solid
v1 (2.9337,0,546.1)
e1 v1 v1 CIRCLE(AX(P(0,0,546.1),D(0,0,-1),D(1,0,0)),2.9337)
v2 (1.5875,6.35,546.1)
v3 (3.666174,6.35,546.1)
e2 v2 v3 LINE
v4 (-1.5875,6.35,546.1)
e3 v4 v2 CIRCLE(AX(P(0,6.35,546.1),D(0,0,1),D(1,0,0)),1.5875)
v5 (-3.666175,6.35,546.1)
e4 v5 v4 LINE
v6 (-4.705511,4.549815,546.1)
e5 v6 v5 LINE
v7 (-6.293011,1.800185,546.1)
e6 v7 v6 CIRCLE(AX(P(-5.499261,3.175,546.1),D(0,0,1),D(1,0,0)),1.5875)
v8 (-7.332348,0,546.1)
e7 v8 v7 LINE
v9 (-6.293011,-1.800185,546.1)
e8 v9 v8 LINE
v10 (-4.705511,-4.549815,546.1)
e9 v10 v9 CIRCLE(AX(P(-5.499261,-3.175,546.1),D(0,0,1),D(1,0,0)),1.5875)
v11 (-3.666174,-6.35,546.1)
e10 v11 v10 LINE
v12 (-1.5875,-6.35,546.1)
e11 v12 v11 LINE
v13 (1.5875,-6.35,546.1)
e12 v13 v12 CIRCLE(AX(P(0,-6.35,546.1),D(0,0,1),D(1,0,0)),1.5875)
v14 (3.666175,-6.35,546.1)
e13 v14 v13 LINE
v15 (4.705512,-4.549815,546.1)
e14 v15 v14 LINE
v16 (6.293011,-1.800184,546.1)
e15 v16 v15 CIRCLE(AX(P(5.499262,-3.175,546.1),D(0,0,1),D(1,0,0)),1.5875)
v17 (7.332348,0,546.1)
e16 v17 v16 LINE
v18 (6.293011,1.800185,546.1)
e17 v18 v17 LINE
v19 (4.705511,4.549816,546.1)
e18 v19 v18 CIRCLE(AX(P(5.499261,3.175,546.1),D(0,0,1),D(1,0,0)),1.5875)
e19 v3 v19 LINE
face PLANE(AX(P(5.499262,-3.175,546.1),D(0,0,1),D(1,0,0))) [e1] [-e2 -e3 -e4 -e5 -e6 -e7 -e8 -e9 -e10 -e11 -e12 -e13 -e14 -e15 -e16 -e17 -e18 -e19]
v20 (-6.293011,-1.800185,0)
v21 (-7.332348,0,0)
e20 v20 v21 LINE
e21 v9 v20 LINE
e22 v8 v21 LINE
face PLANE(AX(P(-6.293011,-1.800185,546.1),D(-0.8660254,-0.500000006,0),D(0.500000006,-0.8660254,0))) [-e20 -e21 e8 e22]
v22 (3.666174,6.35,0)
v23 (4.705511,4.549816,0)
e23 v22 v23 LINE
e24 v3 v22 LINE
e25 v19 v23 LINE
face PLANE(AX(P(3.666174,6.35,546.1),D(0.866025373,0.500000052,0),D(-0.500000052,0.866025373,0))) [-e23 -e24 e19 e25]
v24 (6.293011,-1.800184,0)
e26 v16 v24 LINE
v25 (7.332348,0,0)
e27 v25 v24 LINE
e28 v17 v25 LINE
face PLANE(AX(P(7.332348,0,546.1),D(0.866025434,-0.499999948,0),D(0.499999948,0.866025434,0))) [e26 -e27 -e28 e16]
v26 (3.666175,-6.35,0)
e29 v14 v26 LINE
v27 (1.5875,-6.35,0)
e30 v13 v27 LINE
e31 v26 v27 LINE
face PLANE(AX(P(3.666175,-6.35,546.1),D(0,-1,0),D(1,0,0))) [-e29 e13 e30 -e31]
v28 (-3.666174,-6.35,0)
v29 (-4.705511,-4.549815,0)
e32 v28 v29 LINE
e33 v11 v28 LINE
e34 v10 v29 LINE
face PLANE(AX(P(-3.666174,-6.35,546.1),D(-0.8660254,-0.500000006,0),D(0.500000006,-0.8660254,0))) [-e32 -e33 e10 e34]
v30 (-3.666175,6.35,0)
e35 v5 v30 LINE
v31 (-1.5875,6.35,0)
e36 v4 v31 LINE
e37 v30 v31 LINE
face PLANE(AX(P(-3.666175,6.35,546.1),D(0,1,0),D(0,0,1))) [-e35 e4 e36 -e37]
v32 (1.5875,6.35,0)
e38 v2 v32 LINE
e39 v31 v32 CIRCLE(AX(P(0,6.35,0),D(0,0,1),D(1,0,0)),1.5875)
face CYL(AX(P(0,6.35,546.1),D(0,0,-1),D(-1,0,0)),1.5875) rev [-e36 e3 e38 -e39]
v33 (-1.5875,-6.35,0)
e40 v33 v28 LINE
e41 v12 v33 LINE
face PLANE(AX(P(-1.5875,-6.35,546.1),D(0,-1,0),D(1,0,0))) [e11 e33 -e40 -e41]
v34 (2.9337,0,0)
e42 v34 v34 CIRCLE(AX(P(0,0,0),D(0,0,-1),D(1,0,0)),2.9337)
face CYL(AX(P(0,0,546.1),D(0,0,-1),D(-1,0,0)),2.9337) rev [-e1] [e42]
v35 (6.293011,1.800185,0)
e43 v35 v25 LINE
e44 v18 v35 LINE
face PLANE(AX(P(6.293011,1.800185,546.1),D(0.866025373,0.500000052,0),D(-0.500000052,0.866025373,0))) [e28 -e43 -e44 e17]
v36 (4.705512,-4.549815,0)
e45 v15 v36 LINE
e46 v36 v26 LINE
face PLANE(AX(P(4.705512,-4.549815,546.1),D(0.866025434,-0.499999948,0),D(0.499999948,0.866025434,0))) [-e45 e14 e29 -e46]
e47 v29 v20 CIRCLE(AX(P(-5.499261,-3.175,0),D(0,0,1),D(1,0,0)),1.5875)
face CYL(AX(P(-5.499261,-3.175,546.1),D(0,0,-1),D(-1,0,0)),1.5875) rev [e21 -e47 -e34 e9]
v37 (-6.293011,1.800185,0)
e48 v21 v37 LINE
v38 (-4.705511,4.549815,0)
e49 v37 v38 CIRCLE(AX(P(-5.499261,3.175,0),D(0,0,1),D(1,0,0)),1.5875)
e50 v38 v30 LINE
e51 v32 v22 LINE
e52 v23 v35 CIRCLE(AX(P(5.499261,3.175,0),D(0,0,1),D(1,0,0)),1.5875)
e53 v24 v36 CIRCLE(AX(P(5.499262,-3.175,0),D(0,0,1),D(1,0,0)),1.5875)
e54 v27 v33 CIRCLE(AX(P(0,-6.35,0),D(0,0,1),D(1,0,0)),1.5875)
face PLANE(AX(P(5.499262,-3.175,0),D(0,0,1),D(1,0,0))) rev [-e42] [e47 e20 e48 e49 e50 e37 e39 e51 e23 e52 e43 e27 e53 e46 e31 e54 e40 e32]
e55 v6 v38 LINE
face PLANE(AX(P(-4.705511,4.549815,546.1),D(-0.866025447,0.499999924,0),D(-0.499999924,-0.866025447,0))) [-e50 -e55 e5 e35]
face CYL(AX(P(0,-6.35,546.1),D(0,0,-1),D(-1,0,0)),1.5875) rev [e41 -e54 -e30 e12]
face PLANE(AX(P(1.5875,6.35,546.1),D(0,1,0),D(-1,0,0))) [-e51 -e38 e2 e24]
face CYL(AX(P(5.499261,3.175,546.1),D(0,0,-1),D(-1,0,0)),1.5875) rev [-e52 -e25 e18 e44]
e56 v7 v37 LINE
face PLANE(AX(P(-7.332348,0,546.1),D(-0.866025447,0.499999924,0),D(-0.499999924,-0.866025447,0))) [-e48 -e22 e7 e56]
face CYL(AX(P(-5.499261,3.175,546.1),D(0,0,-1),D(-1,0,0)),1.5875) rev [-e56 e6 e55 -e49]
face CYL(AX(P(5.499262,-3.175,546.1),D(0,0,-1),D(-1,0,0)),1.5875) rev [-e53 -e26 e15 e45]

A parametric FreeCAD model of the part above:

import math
import FreeCAD as App
import Part
import Sketcher
Q = App.Units.Quantity

doc = App.newDocument("Part")
body = doc.addObject("PartDesign::Body", "Body")

# Sketch on XY plane
sketch1 = body.newObject("Sketcher::SketchObject", "Sketch")
sketch1.AttachmentSupport = (doc.getObject("XY_Plane"), [""])
sketch1.MapMode = "FlatFace"
sketch1.addGeometry(Part.LineSegment(App.Vector(4.7, -4.5, 0), App.Vector(3.7, -6.3, 0)), False)
sketch1.addGeometry(Part.LineSegment(App.Vector(3.7, -6.3, 0), App.Vector(1.6, -6.3, 0)), False)
sketch1.addGeometry(Part.ArcOfCircle(Part.Circle(App.Vector(0, -6.3, 0), App.Vector(0, 0, 1), 1.6), math.radians(0), math.radians(180)), False)
sketch1.addGeometry(Part.LineSegment(App.Vector(-1.6, -6.3, 0), App.Vector(-3.7, -6.3, 0)), False)
sketch1.addGeometry(Part.LineSegment(App.Vector(-3.7, -6.3, 0), App.Vector(-4.7, -4.5, 0)), False)
sketch1.addGeometry(Part.ArcOfCircle(Part.Circle(App.Vector(-5.5, -3.2, 0), App.Vector(0, 0, 1), 1.6), math.radians(-60), math.radians(120)), False)
sketch1.addGeometry(Part.LineSegment(App.Vector(-6.3, -1.8, 0), App.Vector(-7.3, 0, 0)), False)
sketch1.addGeometry(Part.LineSegment(App.Vector(-7.3, 0, 0), App.Vector(-6.3, 1.8, 0)), False)
sketch1.addGeometry(Part.ArcOfCircle(Part.Circle(App.Vector(-5.5, 3.2, 0), App.Vector(0, 0, 1), 1.6), math.radians(-120), math.radians(60)), False)
sketch1.addGeometry(Part.LineSegment(App.Vector(-4.7, 4.5, 0), App.Vector(-3.7, 6.4, 0)), False)
sketch1.addGeometry(Part.LineSegment(App.Vector(-3.7, 6.4, 0), App.Vector(-1.6, 6.4, 0)), False)
sketch1.addGeometry(Part.ArcOfCircle(Part.Circle(App.Vector(0, 6.4, 0), App.Vector(0, 0, 1), 1.6), math.radians(180), math.radians(360)), False)
sketch1.addGeometry(Part.LineSegment(App.Vector(1.6, 6.4, 0), App.Vector(3.7, 6.4, 0)), False)
sketch1.addGeometry(Part.LineSegment(App.Vector(3.7, 6.4, 0), App.Vector(4.7, 4.5, 0)), False)
sketch1.addGeometry(Part.ArcOfCircle(Part.Circle(App.Vector(5.5, 3.2, 0), App.Vector(0, 0, 1), 1.6), math.radians(120), math.radians(300)), False)
sketch1.addGeometry(Part.LineSegment(App.Vector(6.3, 1.8, 0), App.Vector(7.3, 0, 0)), False)
sketch1.addGeometry(Part.LineSegment(App.Vector(7.3, 0, 0), App.Vector(6.3, -1.8, 0)), False)
sketch1.addGeometry(Part.ArcOfCircle(Part.Circle(App.Vector(5.5, -3.2, 0), App.Vector(0, 0, 1), 1.6), math.radians(60), math.radians(240)), False)
sketch1.addGeometry(Part.Circle(App.Vector(0, 0, 0), App.Vector(0, 0, 1), 2.9), False)
sketch1.addConstraint(Sketcher.Constraint("Coincident", 0, 2, 1, 1))
sketch1.addConstraint(Sketcher.Constraint("Coincident", 1, 2, 2, 1))
sketch1.addConstraint(Sketcher.Constraint("Coincident", 2, 2, 3, 1))
sketch1.addConstraint(Sketcher.Constraint("Coincident", 3, 2, 4, 1))
sketch1.addConstraint(Sketcher.Constraint("Coincident", 4, 2, 5, 1))
sketch1.addConstraint(Sketcher.Constraint("Coincident", 5, 2, 6, 1))
sketch1.addConstraint(Sketcher.Constraint("Coincident", 6, 2, 7, 1))
sketch1.addConstraint(Sketcher.Constraint("Coincident", 7, 2, 8, 1))
sketch1.addConstraint(Sketcher.Constraint("Coincident", 8, 2, 9, 1))
sketch1.addConstraint(Sketcher.Constraint("Coincident", 9, 2, 10, 1))
sketch1.addConstraint(Sketcher.Constraint("Coincident", 10, 2, 11, 1))
sketch1.addConstraint(Sketcher.Constraint("Coincident", 11, 2, 12, 1))
sketch1.addConstraint(Sketcher.Constraint("Coincident", 12, 2, 13, 1))
sketch1.addConstraint(Sketcher.Constraint("Coincident", 13, 2, 14, 1))
sketch1.addConstraint(Sketcher.Constraint("Coincident", 14, 2, 15, 1))
sketch1.addConstraint(Sketcher.Constraint("Coincident", 15, 2, 16, 1))
sketch1.addConstraint(Sketcher.Constraint("Coincident", 16, 2, 17, 1))
sketch1.addConstraint(Sketcher.Constraint("Coincident", 17, 2, 0, 1))
sketch1.addConstraint(Sketcher.Constraint("Horizontal", 1))
sketch1.addConstraint(Sketcher.Constraint("Horizontal", 3))
sketch1.addConstraint(Sketcher.Constraint("Horizontal", 10))
sketch1.addConstraint(Sketcher.Constraint("Horizontal", 12))
sketch1.addConstraint(Sketcher.Constraint("Coincident", 18, 3, -1, 1))
sketch1.addConstraint(Sketcher.Constraint("Equal", 2, 5))
sketch1.addConstraint(Sketcher.Constraint("Equal", 5, 8))
sketch1.addConstraint(Sketcher.Constraint("Equal", 8, 11))
sketch1.addConstraint(Sketcher.Constraint("Equal", 11, 14))
sketch1.addConstraint(Sketcher.Constraint("Equal", 14, 17))
sketch1.addConstraint(Sketcher.Constraint("Symmetric", 2, 3, 11, 3, -1, 1))
sketch1.addConstraint(Sketcher.Constraint("Symmetric", 5, 3, 14, 3, -1, 1))
sketch1.addConstraint(Sketcher.Constraint("Symmetric", 8, 3, 17, 3, -1, 1))
sketch1.addConstraint(Sketcher.Constraint("Symmetric", 0, 2, 9, 2, -1, 1))
sketch1.addConstraint(Sketcher.Constraint("Symmetric", 3, 2, 12, 2, -1, 1))
sketch1.addConstraint(Sketcher.Constraint("Symmetric", 6, 2, 15, 2, -1, 1))
sketch1.addConstraint(Sketcher.Constraint("Symmetric", 8, 3, 14, 3, -2))
sketch1.addConstraint(Sketcher.Constraint("Symmetric", 1, 2, 2, 2, -2))
sketch1.addConstraint(Sketcher.Constraint("PointOnObject", 6, 2, -1))
sketch1.addConstraint(Sketcher.Constraint("Parallel", 4, 6))
sketch1.addConstraint(Sketcher.Constraint("Parallel", 0, 7))
sketch1.addConstraint(Sketcher.Constraint("Parallel", 7, 9))
sketch1.addConstraint(Sketcher.Constraint("Parallel", 6, 13))
sketch1.addConstraint(Sketcher.Constraint("Parallel", 13, 15))
sketch1.addConstraint(Sketcher.Constraint("Parallel", 9, 16))
sketch1.addConstraint(Sketcher.Constraint("Horizontal", 2, 3, 0, 2))
sketch1.addConstraint(Sketcher.Constraint("Horizontal", 8, 2, 13, 2))
sketch1.addConstraint(Sketcher.Constraint("Horizontal", 7, 2, 14, 2))
sketch1.addConstraint(Sketcher.Constraint("Equal", 4, 6))
sketch1.addConstraint(Sketcher.Constraint("Diameter", 18, Q("0.231 in")))
sketch1.addConstraint(Sketcher.Constraint("Angle", 0, Q("-119.999997 deg")))
sketch1.addConstraint(Sketcher.Constraint("Radius", 2, Q("0.0625 in")))
sketch1.addConstraint(Sketcher.Constraint("DistanceY", 2, 3, 11, 3, Q("0.5 in")))
sketch1.addConstraint(Sketcher.Constraint("DistanceY", 5, 3, 8, 3, Q("0.25 in")))
sketch1.addConstraint(Sketcher.Constraint("DistanceX", 5, 3, 4, 2, Q("0.03125 in")))
sketch1.addConstraint(Sketcher.Constraint("DistanceX", 1, 2, 1, 1, Q("2.078674 mm")))
pad1 = body.newObject("PartDesign::Pad", "Pad")
pad1.Profile = sketch1
pad1.Length = Q("21.5 in")

doc.recompute()
